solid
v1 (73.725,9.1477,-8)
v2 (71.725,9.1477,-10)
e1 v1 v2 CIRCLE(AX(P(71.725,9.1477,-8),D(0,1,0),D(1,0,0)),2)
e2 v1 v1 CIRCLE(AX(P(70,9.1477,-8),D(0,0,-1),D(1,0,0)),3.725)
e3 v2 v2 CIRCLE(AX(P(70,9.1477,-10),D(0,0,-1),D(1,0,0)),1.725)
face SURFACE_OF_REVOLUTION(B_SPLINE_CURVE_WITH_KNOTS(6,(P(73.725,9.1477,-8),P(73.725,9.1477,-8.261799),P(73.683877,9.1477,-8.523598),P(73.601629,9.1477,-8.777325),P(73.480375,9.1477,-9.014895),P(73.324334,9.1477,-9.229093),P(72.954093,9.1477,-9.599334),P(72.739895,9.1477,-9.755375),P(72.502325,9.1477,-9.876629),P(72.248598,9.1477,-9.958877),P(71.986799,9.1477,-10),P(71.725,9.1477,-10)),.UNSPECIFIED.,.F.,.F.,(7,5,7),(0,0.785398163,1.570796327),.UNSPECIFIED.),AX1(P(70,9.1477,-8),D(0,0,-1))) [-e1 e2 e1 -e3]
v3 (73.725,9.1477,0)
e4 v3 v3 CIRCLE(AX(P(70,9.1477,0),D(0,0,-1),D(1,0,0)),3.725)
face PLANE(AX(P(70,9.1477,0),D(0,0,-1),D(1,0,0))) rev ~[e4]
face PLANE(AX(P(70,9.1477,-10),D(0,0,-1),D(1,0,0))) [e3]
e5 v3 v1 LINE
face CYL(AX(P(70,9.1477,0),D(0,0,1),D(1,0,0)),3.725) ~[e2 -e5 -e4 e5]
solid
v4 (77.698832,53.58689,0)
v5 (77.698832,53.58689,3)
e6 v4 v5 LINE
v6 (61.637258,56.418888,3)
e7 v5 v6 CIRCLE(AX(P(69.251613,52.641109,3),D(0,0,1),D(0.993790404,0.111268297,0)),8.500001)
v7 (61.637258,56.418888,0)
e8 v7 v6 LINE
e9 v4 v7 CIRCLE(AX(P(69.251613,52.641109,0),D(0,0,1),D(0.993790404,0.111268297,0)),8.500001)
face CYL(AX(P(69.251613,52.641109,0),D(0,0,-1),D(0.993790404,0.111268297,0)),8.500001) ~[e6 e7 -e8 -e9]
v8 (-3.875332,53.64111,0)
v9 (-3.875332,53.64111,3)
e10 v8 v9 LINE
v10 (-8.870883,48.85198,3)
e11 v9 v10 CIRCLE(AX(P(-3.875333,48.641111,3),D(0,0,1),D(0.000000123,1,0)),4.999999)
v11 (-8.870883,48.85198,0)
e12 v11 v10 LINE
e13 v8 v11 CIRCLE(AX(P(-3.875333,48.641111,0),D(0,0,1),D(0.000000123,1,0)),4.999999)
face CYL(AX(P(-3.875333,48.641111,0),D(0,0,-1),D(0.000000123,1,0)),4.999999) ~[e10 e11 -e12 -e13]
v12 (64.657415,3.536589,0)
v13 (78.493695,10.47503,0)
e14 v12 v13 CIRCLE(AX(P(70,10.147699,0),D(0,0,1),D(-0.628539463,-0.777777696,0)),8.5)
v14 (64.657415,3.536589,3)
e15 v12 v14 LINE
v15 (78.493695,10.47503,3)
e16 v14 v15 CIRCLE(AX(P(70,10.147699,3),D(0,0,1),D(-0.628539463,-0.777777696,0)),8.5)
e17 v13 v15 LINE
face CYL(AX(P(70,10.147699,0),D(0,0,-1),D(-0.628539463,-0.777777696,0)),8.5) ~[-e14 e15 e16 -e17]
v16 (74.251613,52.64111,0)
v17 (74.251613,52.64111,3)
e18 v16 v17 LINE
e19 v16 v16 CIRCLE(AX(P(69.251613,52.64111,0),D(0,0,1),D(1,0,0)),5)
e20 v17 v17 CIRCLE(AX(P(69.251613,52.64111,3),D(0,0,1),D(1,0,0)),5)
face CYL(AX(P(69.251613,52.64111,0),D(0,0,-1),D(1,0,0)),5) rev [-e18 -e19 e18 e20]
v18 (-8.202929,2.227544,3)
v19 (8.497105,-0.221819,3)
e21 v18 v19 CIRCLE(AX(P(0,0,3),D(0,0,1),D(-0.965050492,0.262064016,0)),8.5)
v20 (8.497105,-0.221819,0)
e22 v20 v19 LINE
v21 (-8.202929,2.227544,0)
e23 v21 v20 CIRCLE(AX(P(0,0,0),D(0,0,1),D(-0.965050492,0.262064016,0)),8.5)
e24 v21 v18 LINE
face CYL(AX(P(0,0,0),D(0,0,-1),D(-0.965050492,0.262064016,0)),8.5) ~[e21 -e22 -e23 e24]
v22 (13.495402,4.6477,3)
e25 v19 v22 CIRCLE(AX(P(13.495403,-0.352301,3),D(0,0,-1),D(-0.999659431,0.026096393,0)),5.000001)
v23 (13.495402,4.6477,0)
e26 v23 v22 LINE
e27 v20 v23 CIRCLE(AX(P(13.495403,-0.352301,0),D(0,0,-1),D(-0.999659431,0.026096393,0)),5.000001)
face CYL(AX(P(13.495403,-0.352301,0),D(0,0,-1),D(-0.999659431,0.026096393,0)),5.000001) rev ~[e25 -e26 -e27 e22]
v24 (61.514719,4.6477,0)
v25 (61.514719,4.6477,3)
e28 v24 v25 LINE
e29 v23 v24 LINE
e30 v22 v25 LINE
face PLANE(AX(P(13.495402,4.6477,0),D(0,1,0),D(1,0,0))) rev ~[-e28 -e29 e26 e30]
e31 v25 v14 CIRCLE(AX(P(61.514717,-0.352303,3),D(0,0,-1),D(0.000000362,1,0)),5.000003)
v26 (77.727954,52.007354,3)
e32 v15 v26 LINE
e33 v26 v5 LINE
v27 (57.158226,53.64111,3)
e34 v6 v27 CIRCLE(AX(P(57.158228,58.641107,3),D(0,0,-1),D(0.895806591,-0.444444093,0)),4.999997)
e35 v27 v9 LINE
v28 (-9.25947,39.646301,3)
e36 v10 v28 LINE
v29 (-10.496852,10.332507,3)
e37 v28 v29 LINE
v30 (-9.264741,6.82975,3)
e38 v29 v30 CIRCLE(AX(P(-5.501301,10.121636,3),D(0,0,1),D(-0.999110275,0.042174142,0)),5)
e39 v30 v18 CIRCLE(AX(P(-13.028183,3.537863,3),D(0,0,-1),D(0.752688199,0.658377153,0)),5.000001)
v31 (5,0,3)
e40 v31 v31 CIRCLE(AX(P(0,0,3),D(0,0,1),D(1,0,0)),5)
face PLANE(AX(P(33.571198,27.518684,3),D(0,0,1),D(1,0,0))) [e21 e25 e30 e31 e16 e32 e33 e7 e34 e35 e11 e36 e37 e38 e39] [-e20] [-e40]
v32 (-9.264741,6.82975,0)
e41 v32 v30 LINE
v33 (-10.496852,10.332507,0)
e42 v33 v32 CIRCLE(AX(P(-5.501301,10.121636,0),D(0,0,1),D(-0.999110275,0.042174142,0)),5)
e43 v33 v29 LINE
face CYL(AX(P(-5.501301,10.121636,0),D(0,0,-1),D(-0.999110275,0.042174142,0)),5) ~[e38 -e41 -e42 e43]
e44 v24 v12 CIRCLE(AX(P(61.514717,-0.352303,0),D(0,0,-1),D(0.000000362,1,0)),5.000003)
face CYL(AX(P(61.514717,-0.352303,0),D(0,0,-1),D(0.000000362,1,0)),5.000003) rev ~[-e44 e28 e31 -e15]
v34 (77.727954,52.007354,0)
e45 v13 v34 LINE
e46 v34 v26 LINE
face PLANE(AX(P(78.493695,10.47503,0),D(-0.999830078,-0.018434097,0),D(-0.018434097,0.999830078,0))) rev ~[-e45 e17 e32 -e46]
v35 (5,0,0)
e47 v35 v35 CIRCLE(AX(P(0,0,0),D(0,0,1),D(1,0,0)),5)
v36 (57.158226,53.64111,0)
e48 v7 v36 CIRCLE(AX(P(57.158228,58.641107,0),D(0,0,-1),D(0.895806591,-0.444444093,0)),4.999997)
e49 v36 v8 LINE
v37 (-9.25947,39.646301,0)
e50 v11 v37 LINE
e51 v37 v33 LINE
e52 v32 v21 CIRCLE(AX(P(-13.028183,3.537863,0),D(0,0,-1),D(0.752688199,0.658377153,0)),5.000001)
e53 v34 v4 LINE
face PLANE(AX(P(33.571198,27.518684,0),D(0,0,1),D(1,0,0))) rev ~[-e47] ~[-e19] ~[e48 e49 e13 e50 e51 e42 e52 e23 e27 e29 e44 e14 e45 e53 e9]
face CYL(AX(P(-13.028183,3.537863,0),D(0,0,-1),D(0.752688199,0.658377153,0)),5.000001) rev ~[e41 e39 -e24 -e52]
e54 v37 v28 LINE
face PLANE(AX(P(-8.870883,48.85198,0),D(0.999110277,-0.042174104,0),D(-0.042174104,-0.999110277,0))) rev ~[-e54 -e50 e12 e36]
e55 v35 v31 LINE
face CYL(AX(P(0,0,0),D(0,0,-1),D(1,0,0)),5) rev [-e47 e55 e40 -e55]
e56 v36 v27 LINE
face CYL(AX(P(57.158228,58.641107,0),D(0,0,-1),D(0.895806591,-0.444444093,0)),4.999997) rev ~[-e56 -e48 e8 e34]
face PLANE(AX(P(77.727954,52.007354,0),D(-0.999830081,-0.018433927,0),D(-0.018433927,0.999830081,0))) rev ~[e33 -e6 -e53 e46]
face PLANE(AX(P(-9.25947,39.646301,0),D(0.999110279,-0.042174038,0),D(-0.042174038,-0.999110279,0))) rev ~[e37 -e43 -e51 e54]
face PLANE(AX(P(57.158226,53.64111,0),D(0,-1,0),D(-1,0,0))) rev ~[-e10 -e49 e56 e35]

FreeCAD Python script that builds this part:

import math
import FreeCAD as App
import Part
import Sketcher

V = App.Vector
Q = App.Units.Quantity


def edges_at(feature, points):
    """Names of the edges that pass closest to the given points."""
    edges = feature.Shape.Edges
    near = lambda p: min(range(len(edges)), key=lambda i: edges[i].distToShape(Part.Vertex(*p))[0])
    return sorted({f"Edge{near(p) + 1}" for p in points})

doc = App.newDocument("Part")
params = doc.addObject("Spreadsheet::Sheet", "Params")
for row, (alias, value) in enumerate([
    ("sketch1_diameter", "10 mm"),
    ("sketch1_diameter2", "10 mm"),
    ("sketch1_radius", "4.999999 mm"),
    ("sketch1_radius2", "5 mm"),
    ("sketch1_radius3", "5.000001 mm"),
    ("pad1_length", "3 mm"),
    ("sketch2_diameter", "7.45 mm"),
    ("pad2_length", "10 mm"),
    ("fillet_radius", "2 mm"),
], start=1):
    params.set(f"A{row}", alias)
    params.set(f"B{row}", "=" + value)
    params.setAlias(f"B{row}", alias)

body = doc.addObject("PartDesign::Body", "Body")

# Sketch on XY plane
sketch1 = body.newObject("Sketcher::SketchObject", "Sketch")
sketch1.AttachmentSupport = (doc.getObject("XY_Plane"), [""])
sketch1.MapMode = "FlatFace"
sketch1.addGeometry(Part.LineSegment(V(78.493695, 10.47503, 0), V(77.727954, 52.007354, 0)), False)
sketch1.addGeometry(Part.LineSegment(V(77.727954, 52.007354, 0), V(77.698832, 53.58689, 0)), False)
sketch1.addGeometry(Part.ArcOfCircle(Part.Circle(V(69.251613, 52.641109, 0), V(0, 0, 1), 8.500001), math.radians(6.388432), math.radians(153.612196)), False)
sketch1.addGeometry(Part.ArcOfCircle(Part.Circle(V(57.158228, 58.641107, 0), V(0, 0, 1), 4.999997), math.radians(-90.000017), math.radians(-26.387778)), False)
sketch1.addGeometry(Part.LineSegment(V(57.158226, 53.64111, 0), V(-3.875332, 53.64111, 0)), False)
sketch1.addGeometry(Part.ArcOfCircle(Part.Circle(V(-3.875333, 48.641111, 0), V(0, 0, 1), 4.999999), math.radians(89.999993), math.radians(177.582903)), False)
sketch1.addGeometry(Part.LineSegment(V(-8.870883, 48.85198, 0), V(-9.25947, 39.646301, 0)), False)
sketch1.addGeometry(Part.LineSegment(V(-9.25947, 39.646301, 0), V(-10.496852, 10.332507, 0)), False)
sketch1.addGeometry(Part.ArcOfCircle(Part.Circle(V(-5.501301, 10.121636, 0), V(0, 0, 1), 5), math.radians(177.582883), math.radians(221.176235)), False)
sketch1.addGeometry(Part.ArcOfCircle(Part.Circle(V(-13.028183, 3.537863, 0), V(0, 0, 1), 5.000001), math.radians(-15.192557), math.radians(41.176222)), False)
sketch1.addGeometry(Part.ArcOfCircle(Part.Circle(V(0, 0, 0), V(0, 0, 1), 8.5), math.radians(164.807431), math.radians(358.50462)), False)
sketch1.addGeometry(Part.ArcOfCircle(Part.Circle(V(13.495403, -0.352301, 0), V(0, 0, 1), 5.000001), math.radians(90.000013), math.radians(178.504617)), False)
sketch1.addGeometry(Part.LineSegment(V(13.495402, 4.6477, 0), V(61.514719, 4.6477, 0)), False)
sketch1.addGeometry(Part.ArcOfCircle(Part.Circle(V(61.514717, -0.352303, 0), V(0, 0, 1), 5.000003), math.radians(51.057574), math.radians(89.999979)), False)
sketch1.addGeometry(Part.ArcOfCircle(Part.Circle(V(70, 10.147699, 0), V(0, 0, 1), 8.5), math.radians(-128.942449), math.radians(2.206978)), False)
sketch1.addGeometry(Part.Circle(V(0, 0, 0), V(0, 0, 1), 5), False)
sketch1.addGeometry(Part.Circle(V(69.251613, 52.64111, 0), V(0, 0, 1), 5), False)
sketch1.addConstraint(Sketcher.Constraint("Coincident", 0, 2, 1, 1))
sketch1.addConstraint(Sketcher.Constraint("Coincident", 1, 2, 2, 1))
sketch1.addConstraint(Sketcher.Constraint("Coincident", 2, 2, 3, 2))
sketch1.addConstraint(Sketcher.Constraint("Coincident", 3, 1, 4, 1))
sketch1.addConstraint(Sketcher.Constraint("Coincident", 4, 2, 5, 1))
sketch1.addConstraint(Sketcher.Constraint("Coincident", 5, 2, 6, 1))
sketch1.addConstraint(Sketcher.Constraint("Coincident", 6, 2, 7, 1))
sketch1.addConstraint(Sketcher.Constraint("Coincident", 7, 2, 8, 1))
sketch1.addConstraint(Sketcher.Constraint("Coincident", 8, 2, 9, 2))
sketch1.addConstraint(Sketcher.Constraint("Coincident", 9, 1, 10, 1))
sketch1.addConstraint(Sketcher.Constraint("Coincident", 10, 2, 11, 2))
sketch1.addConstraint(Sketcher.Constraint("Coincident", 11, 1, 12, 1))
sketch1.addConstraint(Sketcher.Constraint("Coincident", 12, 2, 13, 2))
sketch1.addConstraint(Sketcher.Constraint("Coincident", 13, 1, 14, 1))
sketch1.addConstraint(Sketcher.Constraint("Coincident", 14, 2, 0, 1))
sketch1.addConstraint(Sketcher.Constraint("Horizontal", 4))
sketch1.addConstraint(Sketcher.Constraint("Horizontal", 12))
sketch1.addConstraint(Sketcher.Constraint("Coincident", 10, 3, -1, 1))
sketch1.addConstraint(Sketcher.Constraint("Coincident", 15, 3, -1, 1))
sketch1.addConstraint(Sketcher.Constraint("Coincident", 16, 3, 2, 3))
sketch1.addConstraint(Sketcher.Constraint("Diameter", 15, Q("10 mm")))
sketch1.addConstraint(Sketcher.Constraint("Diameter", 16, Q("10 mm")))
sketch1.addConstraint(Sketcher.Constraint("Radius", 5, Q("4.999999 mm")))
sketch1.addConstraint(Sketcher.Constraint("Radius", 8, Q("5 mm")))
sketch1.addConstraint(Sketcher.Constraint("Radius", 9, Q("5.000001 mm")))
sketch1.addConstraint(Sketcher.Constraint("Radius", 11, Q("5.000001 mm")))
sketch1.addConstraint(Sketcher.Constraint("Radius", 2, Q("8.500001 mm")))
sketch1.addConstraint(Sketcher.Constraint("Radius", 10, Q("8.5 mm")))
sketch1.addConstraint(Sketcher.Constraint("Radius", 14, Q("8.5 mm")))
sketch1.addConstraint(Sketcher.Constraint("DistanceX", -1, 1, 14, 3, Q("70 mm")))
sketch1.addConstraint(Sketcher.Constraint("DistanceY", 5, 3, 2, 3, Q("3.999998 mm")))
sketch1.addConstraint(Sketcher.Constraint("DistanceY", 11, 3, 14, 3, Q("10.5 mm")))
sketch1.addConstraint(Sketcher.Constraint("Radius", 3, Q("4.999997 mm")))
sketch1.addConstraint(Sketcher.Constraint("Radius", 13, Q("5.000003 mm")))
sketch1.addConstraint(Sketcher.Constraint("DistanceY", 1, 2, 2, 2, Q("2.831998 mm")))
sketch1.addConstraint(Sketcher.Constraint("Distance", 7, Q("29.339898 mm")))
sketch1.addConstraint(Sketcher.Constraint("DistanceX", 8, 3, -1, 1, Q("5.501301 mm")))
sketch1.addConstraint(Sketcher.Constraint("DistanceY", 11, 3, -1, 1, Q("0.352301 mm")))
sketch1.addConstraint(Sketcher.Constraint("DistanceY", -1, 1, 6, 2, Q("39.646301 mm")))
sketch1.addConstraint(Sketcher.Constraint("DistanceX", 9, 3, 5, 2, Q("4.1573 mm")))
sketch1.addConstraint(Sketcher.Constraint("DistanceX", 10, 2, 11, 3, Q("4.998298 mm")))
sketch1.addConstraint(Sketcher.Constraint("DistanceX", 10, 3, 11, 1, Q("13.495402 mm")))
sketch1.addConstraint(Sketcher.Constraint("DistanceX", 13, 1, 16, 3, Q("4.594198 mm")))
sketch1.addConstraint(Sketcher.Constraint("DistanceX", 4, 2, 4, 1, Q("61.033558 mm")))
sketch1.addConstraint(Sketcher.Constraint("DistanceX", 12, 1, 12, 2, Q("48.019317 mm")))
sketch1.addConstraint(Sketcher.Constraint("DistanceY", -1, 1, 2, 3, Q("52.641109 mm")))
sketch1.addConstraint(Sketcher.Constraint("DistanceX", -1, 1, 1, 2, Q("77.698832 mm")))
sketch1.addConstraint(Sketcher.Constraint("DistanceY", -1, 1, 1, 2, Q("53.58689 mm")))
sketch1.addConstraint(Sketcher.Constraint("DistanceY", -1, 1, 5, 2, Q("48.85198 mm")))
sketch1.addConstraint(Sketcher.Constraint("DistanceX", 6, 2, -1, 1, Q("9.25947 mm")))
sketch1.addConstraint(Sketcher.Constraint("DistanceX", 8, 2, -1, 1, Q("9.264741 mm")))
sketch1.addConstraint(Sketcher.Constraint("DistanceY", -1, 1, 8, 2, Q("6.82975 mm")))
sketch1.addConstraint(Sketcher.Constraint("DistanceX", 9, 1, -1, 1, Q("8.202929 mm")))
sketch1.addConstraint(Sketcher.Constraint("DistanceY", -1, 1, 14, 2, Q("10.47503 mm")))
sketch1.addConstraint(Sketcher.Constraint("DistanceX", 16, 3, 0, 2, Q("8.476341 mm")))
sketch1.addConstraint(Sketcher.Constraint("DistanceX", 3, 1, 2, 2, Q("4.479032 mm")))
sketch1.addConstraint(Sketcher.Constraint("Distance", 0, Q("41.539382 mm")))
sketch1.setExpression("Constraints[20]", "Params.sketch1_diameter")
sketch1.setExpression("Constraints[21]", "Params.sketch1_diameter2")
sketch1.setExpression("Constraints[22]", "Params.sketch1_radius")
sketch1.setExpression("Constraints[23]", "Params.sketch1_radius2")
sketch1.setExpression("Constraints[24]", "Params.sketch1_radius3")
pad1 = body.newObject("PartDesign::Pad", "Pad")
pad1.Profile = sketch1
pad1.setExpression("Length", "Params.pad1_length")
body2 = doc.addObject("PartDesign::Body", "Body001")

# Sketch on XY plane
sketch2 = body2.newObject("Sketcher::SketchObject", "Sketch001")
sketch2.AttachmentSupport = (doc.getObject("XY_Plane001"), [""])
sketch2.MapMode = "FlatFace"
sketch2.addGeometry(Part.Circle(V(70, 9.1, 0), V(0, 0, 1), 3.7), False)
sketch2.addConstraint(Sketcher.Constraint("Diameter", 0, Q("7.45 mm")))
sketch2.addConstraint(Sketcher.Constraint("DistanceX", -1, 1, 0, 3, Q("70 mm")))
sketch2.addConstraint(Sketcher.Constraint("DistanceY", -1, 1, 0, 3, Q("9.1477 mm")))
sketch2.setExpression("Constraints[0]", "Params.sketch2_diameter")
pad2 = body2.newObject("PartDesign::Pad", "Pad001")
pad2.Profile = sketch2
pad2.setExpression("Length", "Params.pad2_length")
pad2.Reversed = True
doc.recompute()

fillet = body2.newObject("PartDesign::Fillet", "Fillet")
fillet.Base = (pad2, edges_at(pad2, [(66.275, 9.148, -10)]))
fillet.setExpression("Radius", "Params.fillet_radius")

doc.recompute()
